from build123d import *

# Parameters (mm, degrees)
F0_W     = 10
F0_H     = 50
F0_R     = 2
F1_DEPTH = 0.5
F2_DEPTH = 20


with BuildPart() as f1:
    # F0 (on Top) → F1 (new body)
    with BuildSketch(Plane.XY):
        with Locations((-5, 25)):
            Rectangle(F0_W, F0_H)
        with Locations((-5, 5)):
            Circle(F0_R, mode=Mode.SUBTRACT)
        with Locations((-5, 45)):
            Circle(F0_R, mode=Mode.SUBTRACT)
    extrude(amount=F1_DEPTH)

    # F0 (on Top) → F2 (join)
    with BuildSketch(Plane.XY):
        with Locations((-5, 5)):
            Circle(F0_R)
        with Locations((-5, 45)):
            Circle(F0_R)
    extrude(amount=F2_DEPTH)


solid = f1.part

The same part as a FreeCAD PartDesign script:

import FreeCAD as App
import Part
import Sketcher
from FreeCAD import Vector

doc = App.newDocument("Part")
body = doc.addObject("PartDesign::Body", "Body")

sketch1 = doc.addObject("Sketcher::SketchObject", "Sketch")
body.addObject(sketch1)
sketch1.AttachmentSupport = (doc.XY_Plane, [""])
sketch1.MapMode = "FlatFace"
sketch1.addGeometry(Part.LineSegment(Vector(-10, 50, 0), Vector(-10, 0, 0)), False)
sketch1.addGeometry(Part.LineSegment(Vector(-10, 0, 0), Vector(0, 0, 0)), False)
sketch1.addGeometry(Part.LineSegment(Vector(0, 0, 0), Vector(0, 50, 0)), False)
sketch1.addGeometry(Part.LineSegment(Vector(0, 50, 0), Vector(-10, 50, 0)), False)
sketch1.addGeometry(Part.Circle(Vector(-5, 5, 0), Vector(0, 0, 1), 2), False)
sketch1.addGeometry(Part.Circle(Vector(-5, 45, 0), Vector(0, 0, 1), 2), False)
sketch1.addConstraint(Sketcher.Constraint("Coincident", 0, 2, 1, 1))
sketch1.addConstraint(Sketcher.Constraint("Coincident", 1, 2, 2, 1))
sketch1.addConstraint(Sketcher.Constraint("Coincident", 2, 2, 3, 1))
sketch1.addConstraint(Sketcher.Constraint("Coincident", 3, 2, 0, 1))
sketch1.addConstraint(Sketcher.Constraint("Vertical", 0))
sketch1.addConstraint(Sketcher.Constraint("Horizontal", 1))
sketch1.addConstraint(Sketcher.Constraint("Vertical", 2))
sketch1.addConstraint(Sketcher.Constraint("Horizontal", 3))
sketch1.addConstraint(Sketcher.Constraint("Coincident", 1, 2, -1, 1))
sketch1.addConstraint(Sketcher.Constraint("Equal", 4, 5))
sketch1.addConstraint(Sketcher.Constraint("Vertical", 4, 3, 5, 3))
sketch1.addConstraint(Sketcher.Constraint("Diameter", 4, 4.0))
sketch1.addConstraint(Sketcher.Constraint("DistanceX", 1, 1, 1, 2, 10.0))
sketch1.addConstraint(Sketcher.Constraint("DistanceY", 0, 2, 0, 1, 50.0))
sketch1.addConstraint(Sketcher.Constraint("DistanceX", 4, 3, -1, 1, 5.0))
sketch1.addConstraint(Sketcher.Constraint("DistanceY", -1, 1, 4, 3, 5.0))
sketch1.addConstraint(Sketcher.Constraint("DistanceY", -1, 1, 5, 3, 45.0))
pad1 = doc.addObject("PartDesign::Pad", "Pad")
body.addObject(pad1)
pad1.Profile = sketch1
pad1.Length = 0.5

sketch2 = doc.addObject("Sketcher::SketchObject", "Sketch001")
body.addObject(sketch2)
sketch2.AttachmentSupport = (doc.XY_Plane, [""])
sketch2.MapMode = "FlatFace"
sketch2.addGeometry(Part.Circle(Vector(-5, 5, 0), Vector(0, 0, 1), 2), False)
sketch2.addGeometry(Part.Circle(Vector(-5, 45, 0), Vector(0, 0, 1), 2), False)
sketch2.addConstraint(Sketcher.Constraint("Equal", 0, 1))
sketch2.addConstraint(Sketcher.Constraint("Vertical", 0, 3, 1, 3))
sketch2.addConstraint(Sketcher.Constraint("Diameter", 0, 4.0))
sketch2.addConstraint(Sketcher.Constraint("DistanceX", 0, 3, -1, 1, 5.0))
sketch2.addConstraint(Sketcher.Constraint("DistanceY", -1, 1, 0, 3, 5.0))
sketch2.addConstraint(Sketcher.Constraint("DistanceY", -1, 1, 1, 3, 45.0))
pad2 = doc.addObject("PartDesign::Pad", "Pad001")
body.addObject(pad2)
pad2.Profile = sketch2
pad2.Length = 20

doc.recompute()
